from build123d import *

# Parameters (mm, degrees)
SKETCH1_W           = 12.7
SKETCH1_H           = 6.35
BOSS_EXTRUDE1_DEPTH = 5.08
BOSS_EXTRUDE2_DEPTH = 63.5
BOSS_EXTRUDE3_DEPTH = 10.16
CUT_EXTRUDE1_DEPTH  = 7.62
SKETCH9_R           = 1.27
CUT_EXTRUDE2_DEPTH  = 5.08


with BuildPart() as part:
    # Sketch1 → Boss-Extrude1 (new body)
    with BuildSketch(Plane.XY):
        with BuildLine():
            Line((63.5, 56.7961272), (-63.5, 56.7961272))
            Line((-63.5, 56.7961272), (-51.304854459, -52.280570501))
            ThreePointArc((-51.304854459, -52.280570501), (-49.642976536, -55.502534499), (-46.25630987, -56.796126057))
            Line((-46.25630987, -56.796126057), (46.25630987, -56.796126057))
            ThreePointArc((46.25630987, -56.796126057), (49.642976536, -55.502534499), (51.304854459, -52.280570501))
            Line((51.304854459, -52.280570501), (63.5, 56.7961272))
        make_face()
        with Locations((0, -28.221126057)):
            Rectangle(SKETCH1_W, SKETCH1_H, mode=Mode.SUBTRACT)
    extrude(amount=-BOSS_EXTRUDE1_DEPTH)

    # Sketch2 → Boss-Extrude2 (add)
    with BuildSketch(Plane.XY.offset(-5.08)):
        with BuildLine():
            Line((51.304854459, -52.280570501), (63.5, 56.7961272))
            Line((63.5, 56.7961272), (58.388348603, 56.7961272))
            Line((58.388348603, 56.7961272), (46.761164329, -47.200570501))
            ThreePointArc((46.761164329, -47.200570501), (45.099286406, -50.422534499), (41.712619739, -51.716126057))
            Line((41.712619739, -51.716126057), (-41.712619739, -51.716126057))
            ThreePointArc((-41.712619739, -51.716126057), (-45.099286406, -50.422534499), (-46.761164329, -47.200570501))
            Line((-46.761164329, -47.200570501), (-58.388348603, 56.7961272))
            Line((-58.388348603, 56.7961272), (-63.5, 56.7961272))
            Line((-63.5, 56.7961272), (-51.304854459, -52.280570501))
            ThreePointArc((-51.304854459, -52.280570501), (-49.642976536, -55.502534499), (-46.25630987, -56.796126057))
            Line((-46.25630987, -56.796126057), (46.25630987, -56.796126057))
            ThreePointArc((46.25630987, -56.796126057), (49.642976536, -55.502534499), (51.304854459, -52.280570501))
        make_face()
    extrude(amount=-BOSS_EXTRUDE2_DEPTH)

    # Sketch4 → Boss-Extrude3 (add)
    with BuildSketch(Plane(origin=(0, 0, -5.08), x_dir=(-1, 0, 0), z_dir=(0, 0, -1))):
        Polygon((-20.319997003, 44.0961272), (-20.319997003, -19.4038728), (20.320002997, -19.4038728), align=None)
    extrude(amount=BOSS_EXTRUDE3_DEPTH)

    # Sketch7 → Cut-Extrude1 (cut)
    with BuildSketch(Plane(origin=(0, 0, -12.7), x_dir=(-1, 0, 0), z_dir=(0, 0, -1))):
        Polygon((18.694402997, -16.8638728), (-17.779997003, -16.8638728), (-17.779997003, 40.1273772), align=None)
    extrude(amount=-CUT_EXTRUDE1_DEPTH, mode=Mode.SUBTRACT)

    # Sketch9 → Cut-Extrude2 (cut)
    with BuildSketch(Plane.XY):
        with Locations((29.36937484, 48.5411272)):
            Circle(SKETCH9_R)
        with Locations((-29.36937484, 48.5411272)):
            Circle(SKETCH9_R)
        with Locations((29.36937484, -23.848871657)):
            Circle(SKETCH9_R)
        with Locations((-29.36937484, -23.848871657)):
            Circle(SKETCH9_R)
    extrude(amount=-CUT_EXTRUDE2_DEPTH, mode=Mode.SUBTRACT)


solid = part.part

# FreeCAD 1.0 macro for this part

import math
import FreeCAD as App
import Part
import Sketcher

V = App.Vector
Q = App.Units.Quantity


def add_polygon(sketch, points):
    """Adds a closed chain of lines whose ends are joined by coincident constraints."""
    first, n = sketch.GeometryCount, len(points)
    for a, b in zip(points, points[1:] + points[:1]):
        sketch.addGeometry(Part.LineSegment(App.Vector(*a, 0), App.Vector(*b, 0)), False)
    for i in range(n):
        sketch.addConstraint(Sketcher.Constraint("Coincident", first + i, 2, first + (i + 1) % n, 1))

doc = App.newDocument("Part")
body = doc.addObject("PartDesign::Body", "Body")

sketch1 = body.newObject("Sketcher::SketchObject", "Sketch")
sketch1.AttachmentSupport = (doc.getObject("XY_Plane"), [""])
sketch1.MapMode = "FlatFace"
sketch1.addGeometry(Part.LineSegment(V(64, 57, 0), V(-64, 57, 0)), False)
sketch1.addGeometry(Part.LineSegment(V(-64, 57, 0), V(-51, -52, 0)), False)
sketch1.addGeometry(Part.ArcOfCircle(Part.Circle(V(-46, -52, 0), V(0, 0, 1), 5), math.radians(-174), math.radians(-90)), False)
sketch1.addGeometry(Part.LineSegment(V(-46, -57, 0), V(46, -57, 0)), False)
sketch1.addGeometry(Part.ArcOfCircle(Part.Circle(V(46, -52, 0), V(0, 0, 1), 5), math.radians(-90), math.radians(-6)), False)
sketch1.addGeometry(Part.LineSegment(V(51, -52, 0), V(64, 57, 0)), False)
add_polygon(sketch1, [(6, -31), (-6, -31), (-6, -25), (6, -25)])
sketch1.addConstraint(Sketcher.Constraint("Coincident", 0, 2, 1, 1))
sketch1.addConstraint(Sketcher.Constraint("Tangent", 1, 2, 2, 1))
sketch1.addConstraint(Sketcher.Constraint("Tangent", 2, 2, 3, 1))
sketch1.addConstraint(Sketcher.Constraint("Tangent", 3, 2, 4, 1))
sketch1.addConstraint(Sketcher.Constraint("Tangent", 4, 2, 5, 1))
sketch1.addConstraint(Sketcher.Constraint("Coincident", 5, 2, 0, 1))
sketch1.addConstraint(Sketcher.Constraint("Horizontal", 0))
sketch1.addConstraint(Sketcher.Constraint("Horizontal", 3))
sketch1.addConstraint(Sketcher.Constraint("Horizontal", 6))
sketch1.addConstraint(Sketcher.Constraint("Vertical", 7))
sketch1.addConstraint(Sketcher.Constraint("Horizontal", 8))
sketch1.addConstraint(Sketcher.Constraint("Vertical", 9))
sketch1.addConstraint(Sketcher.Constraint("Equal", 2, 4))
sketch1.addConstraint(Sketcher.Constraint("Symmetric", 1, 2, 4, 2, -2))
sketch1.addConstraint(Sketcher.Constraint("Radius", 2, Q("0.2 in")))
sketch1.addConstraint(Sketcher.Constraint("DistanceX", 0, 2, 0, 1, Q("5 in")))
sketch1.addConstraint(Sketcher.Constraint("DistanceX", 6, 2, 6, 1, Q("0.5 in")))
sketch1.addConstraint(Sketcher.Constraint("DistanceY", 2, 2, 6, 2, Q("1 in")))
sketch1.addConstraint(Sketcher.Constraint("DistanceY", 7, 1, 7, 2, Q("0.25 in")))
sketch1.addConstraint(Sketcher.Constraint("DistanceX", 6, 2, -1, 1, Q("0.25 in")))
sketch1.addConstraint(Sketcher.Constraint("DistanceX", 3, 1, 3, 2, 92.51262))
sketch1.addConstraint(Sketcher.Constraint("Distance", 1, 109.75631))
sketch1.addConstraint(Sketcher.Constraint("DistanceY", 1, 2, -1, 1, 52.280571))
pad1 = body.newObject("PartDesign::Pad", "Pad")
pad1.Profile = sketch1
pad1.Length = Q("0.2 in")
pad1.Reversed = True

sketch2 = body.newObject("Sketcher::SketchObject", "Sketch001")
sketch2.AttachmentSupport = (doc.getObject("XY_Plane"), [""])
sketch2.MapMode = "FlatFace"
sketch2.AttachmentOffset = App.Placement(V(0, 0, -0.2 * 25.4), App.Rotation())
sketch2.addGeometry(Part.LineSegment(V(51.304854, -52.280571, 0), V(63.5, 56.796127, 0)), False)
sketch2.addGeometry(Part.LineSegment(V(63.5, 56.796127, 0), V(58.388349, 56.796127, 0)), False)
sketch2.addGeometry(Part.LineSegment(V(58.388349, 56.796127, 0), V(46.761164, -47.200571, 0)), False)
sketch2.addGeometry(Part.ArcOfCircle(Part.Circle(V(41.71262, -46.636126, 0), V(0, 0, 1), 5.08), math.radians(-90), math.radians(-6.37937)), False)
sketch2.addGeometry(Part.LineSegment(V(41.71262, -51.716126, 0), V(-41.71262, -51.716126, 0)), False)
sketch2.addGeometry(Part.ArcOfCircle(Part.Circle(V(-41.71262, -46.636126, 0), V(0, 0, 1), 5.08), math.radians(-173.62063), math.radians(-90)), False)
sketch2.addGeometry(Part.LineSegment(V(-46.761164, -47.200571, 0), V(-58.388349, 56.796127, 0)), False)
sketch2.addGeometry(Part.LineSegment(V(-58.388349, 56.796127, 0), V(-63.5, 56.796127, 0)), False)
sketch2.addGeometry(Part.LineSegment(V(-63.5, 56.796127, 0), V(-51.304854, -52.280571, 0)), False)
sketch2.addGeometry(Part.ArcOfCircle(Part.Circle(V(-46.25631, -51.716126, 0), V(0, 0, 1), 5.08), math.radians(-173.62063), math.radians(-90)), False)
sketch2.addGeometry(Part.LineSegment(V(-46.25631, -56.796126, 0), V(46.25631, -56.796126, 0)), False)
sketch2.addGeometry(Part.ArcOfCircle(Part.Circle(V(46.25631, -51.716126, 0), V(0, 0, 1), 5.08), math.radians(-90), math.radians(-6.37937)), False)
sketch2.addConstraint(Sketcher.Constraint("Coincident", 0, 2, 1, 1))
sketch2.addConstraint(Sketcher.Constraint("Coincident", 1, 2, 2, 1))
sketch2.addConstraint(Sketcher.Constraint("Coincident", 2, 2, 3, 2))
sketch2.addConstraint(Sketcher.Constraint("Coincident", 3, 1, 4, 1))
sketch2.addConstraint(Sketcher.Constraint("Coincident", 4, 2, 5, 2))
sketch2.addConstraint(Sketcher.Constraint("Coincident", 5, 1, 6, 1))
sketch2.addConstraint(Sketcher.Constraint("Coincident", 6, 2, 7, 1))
sketch2.addConstraint(Sketcher.Constraint("Coincident", 7, 2, 8, 1))
sketch2.addConstraint(Sketcher.Constraint("Coincident", 8, 2, 9, 1))
sketch2.addConstraint(Sketcher.Constraint("Coincident", 9, 2, 10, 1))
sketch2.addConstraint(Sketcher.Constraint("Coincident", 10, 2, 11, 1))
sketch2.addConstraint(Sketcher.Constraint("Coincident", 11, 2, 0, 1))
sketch2.addConstraint(Sketcher.Constraint("Horizontal", 1))
sketch2.addConstraint(Sketcher.Constraint("Horizontal", 4))
sketch2.addConstraint(Sketcher.Constraint("Horizontal", 7))
sketch2.addConstraint(Sketcher.Constraint("Horizontal", 10))
sketch2.addConstraint(Sketcher.Constraint("Radius", 3, Q("0.2 in")))
sketch2.addConstraint(Sketcher.Constraint("Radius", 5, Q("0.2 in")))
sketch2.addConstraint(Sketcher.Constraint("Radius", 9, Q("0.2 in")))
sketch2.addConstraint(Sketcher.Constraint("Radius", 11, Q("0.2 in")))
sketch2.addConstraint(Sketcher.Constraint("DistanceX", -1, 1, 0, 2, Q("2.5 in")))
sketch2.addConstraint(Sketcher.Constraint("DistanceX", 7, 2, -1, 1, Q("2.5 in")))
sketch2.addConstraint(Sketcher.Constraint("DistanceY", 9, 3, 5, 3, Q("0.2 in")))
sketch2.addConstraint(Sketcher.Constraint("DistanceY", 8, 2, 5, 1, Q("0.2 in")))
sketch2.addConstraint(Sketcher.Constraint("DistanceY", 11, 2, 2, 2, Q("0.2 in")))
sketch2.addConstraint(Sketcher.Constraint("DistanceX", 1, 2, 1, 1, 5.111651))
sketch2.addConstraint(Sketcher.Constraint("DistanceX", 4, 2, 4, 1, 83.425239))
sketch2.addConstraint(Sketcher.Constraint("DistanceX", 7, 2, 7, 1, 5.111651))
sketch2.addConstraint(Sketcher.Constraint("DistanceX", 10, 1, 10, 2, 92.51262))
sketch2.addConstraint(Sketcher.Constraint("Distance", 0, 109.75631))
sketch2.addConstraint(Sketcher.Constraint("Distance", 2, 104.644658))
sketch2.addConstraint(Sketcher.Constraint("Distance", 6, 104.644658))
sketch2.addConstraint(Sketcher.Constraint("Distance", 8, 109.75631))
sketch2.addConstraint(Sketcher.Constraint("DistanceX", -1, 1, 3, 3, 41.71262))
sketch2.addConstraint(Sketcher.Constraint("DistanceX", 5, 3, -1, 1, 41.71262))
sketch2.addConstraint(Sketcher.Constraint("DistanceY", 2, 2, -1, 1, 47.200571))
sketch2.addConstraint(Sketcher.Constraint("DistanceX", -1, 1, 3, 1, 41.71262))
sketch2.addConstraint(Sketcher.Constraint("DistanceY", 5, 1, -1, 1, 47.200571))
sketch2.addConstraint(Sketcher.Constraint("DistanceX", 9, 2, -1, 1, 46.25631))
sketch2.addConstraint(Sketcher.Constraint("DistanceY", 3, 3, -1, 1, 46.636126))
pad2 = body.newObject("PartDesign::Pad", "Pad001")
pad2.Profile = sketch2
pad2.Length = Q("2.5 in")
pad2.Reversed = True

sketch3 = body.newObject("Sketcher::SketchObject", "Sketch002")
sketch3.AttachmentSupport = (doc.getObject("XY_Plane"), [""])
sketch3.MapMode = "FlatFace"
sketch3.AttachmentOffset = App.Placement(V(0, 0, -0.2 * 25.4), App.Rotation())
add_polygon(sketch3, [(20, 44), (20, -19), (-20, -19)])
sketch3.addConstraint(Sketcher.Constraint("Vertical", 0))
sketch3.addConstraint(Sketcher.Constraint("Horizontal", 1))
sketch3.addConstraint(Sketcher.Constraint("DistanceX", 1, 2, 1, 1, Q("1.6 in")))
sketch3.addConstraint(Sketcher.Constraint("DistanceY", 0, 2, 0, 1, Q("2.5 in")))
sketch3.addConstraint(Sketcher.Constraint("DistanceX", -1, 1, 0, 2, Q("0.7999999 in")))
sketch3.addConstraint(Sketcher.Constraint("DistanceY", 0, 2, -1, 1, 19.403873))
pad3 = body.newObject("PartDesign::Pad", "Pad002")
pad3.Profile = sketch3
pad3.Length = Q("0.4 in")
pad3.Reversed = True

sketch4 = body.newObject("Sketcher::SketchObject", "Sketch003")
sketch4.AttachmentSupport = (doc.getObject("XY_Plane"), [""])
sketch4.MapMode = "FlatFace"
sketch4.AttachmentOffset = App.Placement(V(0, 0, -0.5 * 25.4), App.Rotation())
add_polygon(sketch4, [(18, -17), (-19, -17), (18, 40)])
sketch4.addConstraint(Sketcher.Constraint("Horizontal", 0))
sketch4.addConstraint(Sketcher.Constraint("Vertical", 2))
sketch4.addConstraint(Sketcher.Constraint("DistanceX", -1, 1, 1, 2, Q("0.6999999 in")))
sketch4.addConstraint(Sketcher.Constraint("DistanceX", 0, 2, 0, 1, Q("1.436 in")))
sketch4.addConstraint(Sketcher.Constraint("DistanceY", 2, 2, 2, 1, 56.99125))
sketch4.addConstraint(Sketcher.Constraint("DistanceY", 0, 2, -1, 1, 16.863873))
pocket1 = body.newObject("PartDesign::Pocket", "Pocket")
pocket1.Profile = sketch4
pocket1.Length = Q("0.3 in")
pocket1.Reversed = True

sketch5 = body.newObject("Sketcher::SketchObject", "Sketch004")
sketch5.AttachmentSupport = (doc.getObject("XY_Plane"), [""])
sketch5.MapMode = "FlatFace"
sketch5.addGeometry(Part.Circle(V(29.4, 48.5, 0), V(0, 0, 1), 1.3), False)
sketch5.addGeometry(Part.Circle(V(-29.4, 48.5, 0), V(0, 0, 1), 1.3), False)
sketch5.addGeometry(Part.Circle(V(29.4, -23.8, 0), V(0, 0, 1), 1.3), False)
sketch5.addGeometry(Part.Circle(V(-29.4, -23.8, 0), V(0, 0, 1), 1.3), False)
sketch5.addConstraint(Sketcher.Constraint("Equal", 0, 1))
sketch5.addConstraint(Sketcher.Constraint("Equal", 1, 2))
sketch5.addConstraint(Sketcher.Constraint("Equal", 2, 3))
sketch5.addConstraint(Sketcher.Constraint("Symmetric", 0, 3, 1, 3, -2))
sketch5.addConstraint(Sketcher.Constraint("Symmetric", 2, 3, 3, 3, -2))
sketch5.addConstraint(Sketcher.Constraint("Vertical", 0, 3, 2, 3))
sketch5.addConstraint(Sketcher.Constraint("Diameter", 0, Q("0.1 in")))
sketch5.addConstraint(Sketcher.Constraint("DistanceY", 2, 3, 0, 3, Q("2.85 in")))
sketch5.addConstraint(Sketcher.Constraint("DistanceY", 2, 3, -1, 1, 23.848872))
sketch5.addConstraint(Sketcher.Constraint("DistanceX", 1, 3, 0, 3, 58.73875))
pocket2 = body.newObject("PartDesign::Pocket", "Pocket001")
pocket2.Profile = sketch5
pocket2.Length = Q("0.2 in")

doc.recompute()
